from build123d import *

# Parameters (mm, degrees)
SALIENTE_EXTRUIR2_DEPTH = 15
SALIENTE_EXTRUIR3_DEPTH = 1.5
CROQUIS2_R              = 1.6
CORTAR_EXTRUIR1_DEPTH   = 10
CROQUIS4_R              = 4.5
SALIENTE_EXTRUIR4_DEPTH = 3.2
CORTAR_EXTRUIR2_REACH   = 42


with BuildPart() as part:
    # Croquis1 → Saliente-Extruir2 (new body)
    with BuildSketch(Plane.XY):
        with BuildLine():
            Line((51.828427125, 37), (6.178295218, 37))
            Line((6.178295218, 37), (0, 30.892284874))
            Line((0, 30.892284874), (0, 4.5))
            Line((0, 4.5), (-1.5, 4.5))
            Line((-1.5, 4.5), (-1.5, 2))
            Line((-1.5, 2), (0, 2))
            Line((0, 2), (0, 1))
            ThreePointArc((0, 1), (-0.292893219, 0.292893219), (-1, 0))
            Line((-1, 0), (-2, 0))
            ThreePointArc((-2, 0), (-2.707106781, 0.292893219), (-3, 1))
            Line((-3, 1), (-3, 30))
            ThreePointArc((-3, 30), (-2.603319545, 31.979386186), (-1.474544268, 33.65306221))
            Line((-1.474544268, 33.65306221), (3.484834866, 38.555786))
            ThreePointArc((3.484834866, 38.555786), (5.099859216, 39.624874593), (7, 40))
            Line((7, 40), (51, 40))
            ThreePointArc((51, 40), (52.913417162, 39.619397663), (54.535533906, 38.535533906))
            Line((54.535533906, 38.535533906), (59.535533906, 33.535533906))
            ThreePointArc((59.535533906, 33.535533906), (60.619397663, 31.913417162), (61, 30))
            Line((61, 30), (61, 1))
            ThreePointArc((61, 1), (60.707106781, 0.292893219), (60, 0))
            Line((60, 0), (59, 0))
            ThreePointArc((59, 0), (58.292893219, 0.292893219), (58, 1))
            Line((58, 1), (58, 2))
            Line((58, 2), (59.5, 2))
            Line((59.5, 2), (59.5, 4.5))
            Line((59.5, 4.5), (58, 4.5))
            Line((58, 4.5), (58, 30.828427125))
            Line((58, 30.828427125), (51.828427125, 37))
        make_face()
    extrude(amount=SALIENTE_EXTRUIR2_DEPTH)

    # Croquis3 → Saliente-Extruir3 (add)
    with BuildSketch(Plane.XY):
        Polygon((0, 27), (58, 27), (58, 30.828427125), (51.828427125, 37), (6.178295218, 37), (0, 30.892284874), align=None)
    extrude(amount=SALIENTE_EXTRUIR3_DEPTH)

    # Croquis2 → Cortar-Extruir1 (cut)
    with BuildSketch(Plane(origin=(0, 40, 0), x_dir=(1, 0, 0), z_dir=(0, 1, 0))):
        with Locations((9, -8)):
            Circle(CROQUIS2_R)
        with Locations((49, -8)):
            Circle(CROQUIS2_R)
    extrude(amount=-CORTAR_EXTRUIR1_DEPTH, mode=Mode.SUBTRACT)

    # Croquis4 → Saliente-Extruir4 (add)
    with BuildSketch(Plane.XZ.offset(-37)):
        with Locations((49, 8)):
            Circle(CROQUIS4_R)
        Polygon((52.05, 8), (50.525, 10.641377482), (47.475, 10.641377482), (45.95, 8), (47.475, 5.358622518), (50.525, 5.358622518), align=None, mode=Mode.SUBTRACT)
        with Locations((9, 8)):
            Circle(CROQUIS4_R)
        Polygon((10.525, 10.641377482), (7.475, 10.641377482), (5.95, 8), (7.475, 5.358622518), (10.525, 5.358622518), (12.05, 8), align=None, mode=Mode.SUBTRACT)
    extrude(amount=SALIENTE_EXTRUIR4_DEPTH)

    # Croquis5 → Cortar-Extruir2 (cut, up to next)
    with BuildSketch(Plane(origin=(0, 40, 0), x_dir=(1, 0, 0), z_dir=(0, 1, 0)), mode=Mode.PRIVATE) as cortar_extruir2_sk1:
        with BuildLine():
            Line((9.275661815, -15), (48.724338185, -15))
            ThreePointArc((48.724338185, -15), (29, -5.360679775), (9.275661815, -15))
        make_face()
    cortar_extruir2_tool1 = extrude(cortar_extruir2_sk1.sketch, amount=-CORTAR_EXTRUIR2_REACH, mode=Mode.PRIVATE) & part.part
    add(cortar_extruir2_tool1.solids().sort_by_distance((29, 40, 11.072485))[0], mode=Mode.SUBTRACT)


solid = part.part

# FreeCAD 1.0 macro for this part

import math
import FreeCAD as App
import Part
import Sketcher

V = App.Vector
Q = App.Units.Quantity

doc = App.newDocument("Part")
body = doc.addObject("PartDesign::Body", "Body")

# Sketch on XY plane
sketch1 = body.newObject("Sketcher::SketchObject", "Sketch")
sketch1.AttachmentSupport = (doc.getObject("XY_Plane"), [""])
sketch1.MapMode = "FlatFace"
sketch1.addGeometry([
    Part.LineSegment(V(6.2, 37, 0), V(51.8, 37, 0)),  # 0
    Part.LineSegment(V(51.8, 37, 0), V(58, 30.8, 0)),  # 1
    Part.LineSegment(V(58, 30.8, 0), V(58, 4.5, 0)),  # 2
    Part.LineSegment(V(58, 4.5, 0), V(59.5, 4.5, 0)),  # 3
    Part.LineSegment(V(59.5, 4.5, 0), V(59.5, 2, 0)),  # 4
    Part.LineSegment(V(59.5, 2, 0), V(58, 2, 0)),  # 5
    Part.LineSegment(V(58, 2, 0), V(58, 1, 0)),  # 6
    Part.ArcOfCircle(Part.Circle(V(59, 1, 0), V(0, 0, 1), 1), math.radians(-180), math.radians(-90)),  # 7
    Part.LineSegment(V(59, 0, 0), V(60, 0, 0)),  # 8
    Part.ArcOfCircle(Part.Circle(V(60, 1, 0), V(0, 0, 1), 1), math.radians(-90), math.radians(0)),  # 9
    Part.LineSegment(V(61, 1, 0), V(61, 30, 0)),  # 10
    Part.ArcOfCircle(Part.Circle(V(56, 30, 0), V(0, 0, 1), 5), math.radians(0), math.radians(45)),  # 11
    Part.LineSegment(V(59.5, 33.5, 0), V(54.5, 38.5, 0)),  # 12
    Part.ArcOfCircle(Part.Circle(V(51, 35, 0), V(0, 0, 1), 5), math.radians(45), math.radians(90)),  # 13
    Part.LineSegment(V(51, 40, 0), V(7, 40, 0)),  # 14
    Part.ArcOfCircle(Part.Circle(V(7, 35, 0), V(0, 0, 1), 5), math.radians(90), math.radians(135)),  # 15
    Part.LineSegment(V(3.5, 38.6, 0), V(-1.5, 33.7, 0)),  # 16
    Part.ArcOfCircle(Part.Circle(V(2.1, 30, 0), V(0, 0, 1), 5.1), math.radians(135), math.radians(180)),  # 17
    Part.LineSegment(V(-3, 30, 0), V(-3, 1, 0)),  # 18
    Part.ArcOfCircle(Part.Circle(V(-2, 1, 0), V(0, 0, 1), 1), math.radians(-180), math.radians(-90)),  # 19
    Part.LineSegment(V(-2, 0, 0), V(-1, 0, 0)),  # 20
    Part.ArcOfCircle(Part.Circle(V(-1, 1, 0), V(0, 0, 1), 1), math.radians(-90), math.radians(0)),  # 21
    Part.LineSegment(V(0, 1, 0), V(0, 2, 0)),  # 22
    Part.LineSegment(V(0, 2, 0), V(-1.5, 2, 0)),  # 23
    Part.LineSegment(V(-1.5, 2, 0), V(-1.5, 4.5, 0)),  # 24
    Part.LineSegment(V(-1.5, 4.5, 0), V(0, 4.5, 0)),  # 25
    Part.LineSegment(V(0, 4.5, 0), V(0, 30.9, 0)),  # 26
    Part.LineSegment(V(0, 30.9, 0), V(6.2, 37, 0)),  # 27
], False)
sketch1.addConstraint([
    Sketcher.Constraint("Coincident", 0, 2, 1, 1),
    Sketcher.Constraint("Coincident", 1, 2, 2, 1),
    Sketcher.Constraint("Coincident", 2, 2, 3, 1),
    Sketcher.Constraint("Coincident", 3, 2, 4, 1),
    Sketcher.Constraint("Coincident", 4, 2, 5, 1),
    Sketcher.Constraint("Coincident", 5, 2, 6, 1),
    Sketcher.Constraint("Tangent", 6, 2, 7, 1),
    Sketcher.Constraint("Tangent", 7, 2, 8, 1),
    Sketcher.Constraint("Tangent", 8, 2, 9, 1),
    Sketcher.Constraint("Tangent", 9, 2, 10, 1),
    Sketcher.Constraint("Tangent", 10, 2, 11, 1),
    Sketcher.Constraint("Tangent", 11, 2, 12, 1),
    Sketcher.Constraint("Tangent", 12, 2, 13, 1),
    Sketcher.Constraint("Tangent", 13, 2, 14, 1),
    Sketcher.Constraint("Tangent", 14, 2, 15, 1),
    Sketcher.Constraint("Tangent", 15, 2, 16, 1),
    Sketcher.Constraint("Tangent", 16, 2, 17, 1),
    Sketcher.Constraint("Tangent", 17, 2, 18, 1),
    Sketcher.Constraint("Tangent", 18, 2, 19, 1),
    Sketcher.Constraint("Tangent", 19, 2, 20, 1),
    Sketcher.Constraint("Tangent", 20, 2, 21, 1),
    Sketcher.Constraint("Tangent", 21, 2, 22, 1),
    Sketcher.Constraint("Coincident", 22, 2, 23, 1),
    Sketcher.Constraint("Coincident", 23, 2, 24, 1),
    Sketcher.Constraint("Coincident", 24, 2, 25, 1),
    Sketcher.Constraint("Coincident", 25, 2, 26, 1),
    Sketcher.Constraint("Coincident", 26, 2, 27, 1),
    Sketcher.Constraint("Coincident", 27, 2, 0, 1),
    Sketcher.Constraint("Horizontal", 0),
    Sketcher.Constraint("Vertical", 2),
    Sketcher.Constraint("Horizontal", 3),
    Sketcher.Constraint("Vertical", 4),
    Sketcher.Constraint("Horizontal", 5),
    Sketcher.Constraint("Vertical", 6),
    Sketcher.Constraint("Horizontal", 8),
    Sketcher.Constraint("Vertical", 10),
    Sketcher.Constraint("Horizontal", 14),
    Sketcher.Constraint("Vertical", 18),
    Sketcher.Constraint("Horizontal", 20),
    Sketcher.Constraint("Vertical", 22),
    Sketcher.Constraint("Horizontal", 23),
    Sketcher.Constraint("Vertical", 24),
    Sketcher.Constraint("Horizontal", 25),
    Sketcher.Constraint("Vertical", 26),
    Sketcher.Constraint("Equal", 7, 9),
    Sketcher.Constraint("Equal", 11, 13),
    Sketcher.Constraint("Equal", 13, 15),
    Sketcher.Constraint("Equal", 9, 19),
    Sketcher.Constraint("Equal", 19, 21),
    Sketcher.Constraint("PointOnObject", 7, 2, -1),
    Sketcher.Constraint("PointOnObject", 19, 2, -1),
    Sketcher.Constraint("PointOnObject", 21, 2, -2),
    Sketcher.Constraint("PointOnObject", 25, 2, -2),
    Sketcher.Constraint("Parallel", 1, 12),
    Sketcher.Constraint("Parallel", 16, 27),
    Sketcher.Constraint("Horizontal", 11, 3, 17, 3),
    Sketcher.Constraint("Horizontal", 5, 2, 22, 2),
    Sketcher.Constraint("Horizontal", 3, 2, 24, 2),
    Sketcher.Constraint("Vertical", 2, 2, 5, 2),
    Sketcher.Constraint("Equal", 8, 20),
    Sketcher.Constraint("Equal", 5, 23),
    Sketcher.Constraint("Equal", 20, 6),
    Sketcher.Constraint("Radius", 7, 1.0),
    Sketcher.Constraint("Radius", 11, 5.0),
    Sketcher.Constraint("DistanceX", 8, 1, 8, 2, 1.0),
    Sketcher.Constraint("DistanceX", 14, 2, 14, 1, 44.0),
    Sketcher.Constraint("DistanceY", 10, 1, 10, 2, 29.0),
    Sketcher.Constraint("Angle", 1, Q("-45 deg")),
    Sketcher.Constraint("DistanceX", 3, 1, 3, 2, 1.5),
    Sketcher.Constraint("DistanceY", 4, 2, 4, 1, 2.5),
    Sketcher.Constraint("DistanceX", -1, 1, 7, 3, 59.0),
    Sketcher.Constraint("DistanceX", -1, 1, 13, 3, 51.0),
    Sketcher.Constraint("DistanceY", -1, 1, 0, 2, 37.0),
    Sketcher.Constraint("Radius", 17, 5.136786),
    Sketcher.Constraint("DistanceX", 0, 1, 0, 2, 45.650132),
    Sketcher.Constraint("DistanceY", 26, 2, 15, 2, 7.663501),
])
pad1 = body.newObject("PartDesign::Pad", "Pad")
pad1.Profile = sketch1
pad1.Length = 15

# Sketch on XY plane
sketch2 = body.newObject("Sketcher::SketchObject", "Sketch001")
sketch2.AttachmentSupport = (doc.getObject("XY_Plane"), [""])
sketch2.MapMode = "FlatFace"
sketch2.addGeometry([
    Part.LineSegment(V(0, 27, 0), V(58, 27, 0)),  # 0
    Part.LineSegment(V(58, 27, 0), V(58, 30.8, 0)),  # 1
    Part.LineSegment(V(58, 30.8, 0), V(51.8, 37, 0)),  # 2
    Part.LineSegment(V(51.8, 37, 0), V(6.2, 37, 0)),  # 3
    Part.LineSegment(V(6.2, 37, 0), V(0, 30.9, 0)),  # 4
    Part.LineSegment(V(0, 30.9, 0), V(0, 27, 0)),  # 5
], False)
sketch2.addConstraint([
    Sketcher.Constraint("Coincident", 0, 2, 1, 1),
    Sketcher.Constraint("Coincident", 1, 2, 2, 1),
    Sketcher.Constraint("Coincident", 2, 2, 3, 1),
    Sketcher.Constraint("Coincident", 3, 2, 4, 1),
    Sketcher.Constraint("Coincident", 4, 2, 5, 1),
    Sketcher.Constraint("Coincident", 5, 2, 0, 1),
    Sketcher.Constraint("Horizontal", 0),
    Sketcher.Constraint("Vertical", 1),
    Sketcher.Constraint("Horizontal", 3),
    Sketcher.Constraint("Vertical", 5),
    Sketcher.Constraint("PointOnObject", 4, 2, -2),
    Sketcher.Constraint("DistanceX", 0, 1, 0, 2, 58.0),
    Sketcher.Constraint("Angle", 2, Q("135 deg")),
    Sketcher.Constraint("DistanceY", -1, 1, 0, 2, 27.0),
    Sketcher.Constraint("DistanceY", -1, 1, 2, 2, 37.0),
    Sketcher.Constraint("DistanceX", 3, 2, 3, 1, 45.650132),
    Sketcher.Constraint("DistanceY", 1, 1, 1, 2, 3.828427),
    Sketcher.Constraint("DistanceY", 5, 2, 5, 1, 3.892285),
])
pad2 = body.newObject("PartDesign::Pad", "Pad001")
pad2.Profile = sketch2
pad2.Length = 1.5

# Sketch on XZ plane
sketch3 = body.newObject("Sketcher::SketchObject", "Sketch002")
sketch3.AttachmentSupport = (doc.getObject("XZ_Plane"), [""])
sketch3.MapMode = "FlatFace"
sketch3.AttachmentOffset = App.Placement(V(0, 0, -40), App.Rotation())
sketch3.addGeometry([
    Part.Circle(V(9, 8, 0), V(0, 0, 1), 1.6),
    Part.Circle(V(49, 8, 0), V(0, 0, 1), 1.6),
], False)
sketch3.addConstraint([
    Sketcher.Constraint("Equal", 0, 1),
    Sketcher.Constraint("Horizontal", 0, 3, 1, 3),
    Sketcher.Constraint("Diameter", 0, 3.2),
    Sketcher.Constraint("DistanceX", -1, 1, 0, 3, 9.0),
    Sketcher.Constraint("DistanceY", -1, 1, 0, 3, 8.0),
    Sketcher.Constraint("DistanceX", -1, 1, 1, 3, 49.0),
])
pocket1 = body.newObject("PartDesign::Pocket", "Pocket")
pocket1.Profile = sketch3
pocket1.Length = 10
pocket1.Reversed = True

# Sketch on XZ plane
sketch4 = body.newObject("Sketcher::SketchObject", "Sketch003")
sketch4.AttachmentSupport = (doc.getObject("XZ_Plane"), [""])
sketch4.MapMode = "FlatFace"
sketch4.AttachmentOffset = App.Placement(V(0, 0, -37), App.Rotation())
sketch4.addGeometry([
    Part.Circle(V(49, 8, 0), V(0, 0, 1), 4.5),  # 0
    Part.LineSegment(V(50.5, 10.6, 0), V(52, 8, 0)),  # 1
    Part.LineSegment(V(52, 8, 0), V(50.5, 5.4, 0)),  # 2
    Part.LineSegment(V(50.5, 5.4, 0), V(47.5, 5.4, 0)),  # 3
    Part.LineSegment(V(47.5, 5.4, 0), V(46, 8, 0)),  # 4
    Part.LineSegment(V(46, 8, 0), V(47.5, 10.6, 0)),  # 5
    Part.LineSegment(V(47.5, 10.6, 0), V(50.5, 10.6, 0)),  # 6
    Part.Circle(V(9, 8, 0), V(0, 0, 1), 4.5),  # 7
    Part.LineSegment(V(7.5, 10.6, 0), V(10.5, 10.6, 0)),  # 8
    Part.LineSegment(V(10.5, 10.6, 0), V(12.1, 8, 0)),  # 9
    Part.LineSegment(V(12.1, 8, 0), V(10.5, 5.4, 0)),  # 10
    Part.LineSegment(V(10.5, 5.4, 0), V(7.5, 5.4, 0)),  # 11
    Part.LineSegment(V(7.5, 5.4, 0), V(6, 8, 0)),  # 12
    Part.LineSegment(V(6, 8, 0), V(7.5, 10.6, 0)),  # 13
], False)
sketch4.addConstraint([
    Sketcher.Constraint("Coincident", 1, 2, 2, 1),
    Sketcher.Constraint("Coincident", 2, 2, 3, 1),
    Sketcher.Constraint("Coincident", 3, 2, 4, 1),
    Sketcher.Constraint("Coincident", 4, 2, 5, 1),
    Sketcher.Constraint("Coincident", 5, 2, 6, 1),
    Sketcher.Constraint("Coincident", 6, 2, 1, 1),
    Sketcher.Constraint("Coincident", 8, 2, 9, 1),
    Sketcher.Constraint("Coincident", 9, 2, 10, 1),
    Sketcher.Constraint("Coincident", 10, 2, 11, 1),
    Sketcher.Constraint("Coincident", 11, 2, 12, 1),
    Sketcher.Constraint("Coincident", 12, 2, 13, 1),
    Sketcher.Constraint("Coincident", 13, 2, 8, 1),
    Sketcher.Constraint("Horizontal", 3),
    Sketcher.Constraint("Horizontal", 6),
    Sketcher.Constraint("Horizontal", 8),
    Sketcher.Constraint("Horizontal", 11),
    Sketcher.Constraint("Equal", 0, 7),
    Sketcher.Constraint("Parallel", 1, 4),
    Sketcher.Constraint("Parallel", 2, 5),
    Sketcher.Constraint("Parallel", 4, 9),
    Sketcher.Constraint("Parallel", 5, 10),
    Sketcher.Constraint("Parallel", 9, 12),
    Sketcher.Constraint("Parallel", 10, 13),
    Sketcher.Constraint("Horizontal", 0, 3, 7, 3),
    Sketcher.Constraint("Horizontal", 7, 3, 1, 2),
    Sketcher.Constraint("Horizontal", 1, 2, 4, 2),
    Sketcher.Constraint("Horizontal", 6, 2, 8, 2),
    Sketcher.Constraint("Horizontal", 4, 2, 9, 2),
    Sketcher.Constraint("Horizontal", 3, 2, 10, 2),
    Sketcher.Constraint("Horizontal", 9, 2, 12, 2),
    Sketcher.Constraint("Vertical", 3, 2, 5, 2),
    Sketcher.Constraint("Vertical", 2, 2, 6, 2),
    Sketcher.Constraint("Equal", 6, 8),
    Sketcher.Constraint("Diameter", 0, 9.0),
    Sketcher.Constraint("Angle", 1, Q("-60 deg")),
    Sketcher.Constraint("DistanceX", -1, 1, 0, 3, 49.0),
    Sketcher.Constraint("DistanceY", -1, 1, 0, 3, 8.0),
    Sketcher.Constraint("DistanceX", -1, 1, 7, 3, 9.0),
    Sketcher.Constraint("DistanceX", 3, 2, 3, 1, 3.05),
    Sketcher.Constraint("DistanceX", 4, 2, 1, 2, 6.1),
    Sketcher.Constraint("DistanceX", 9, 2, 4, 2, 33.9),
    Sketcher.Constraint("DistanceX", -1, 1, 1, 2, 52.05),
])
pad3 = body.newObject("PartDesign::Pad", "Pad002")
pad3.Profile = sketch4
pad3.Length = 3.2

# Sketch on XZ plane
sketch5 = body.newObject("Sketcher::SketchObject", "Sketch004")
sketch5.AttachmentSupport = (doc.getObject("XZ_Plane"), [""])
sketch5.MapMode = "FlatFace"
sketch5.AttachmentOffset = App.Placement(V(0, 0, -40), App.Rotation())
sketch5.addGeometry([
    Part.LineSegment(V(9, 15, 0), V(49, 15, 0)),
    Part.ArcOfCircle(Part.Circle(V(29, 30, 0), V(0, 0, 1), 25), math.radians(-142), math.radians(-38)),
], False)
sketch5.addConstraint([
    Sketcher.Constraint("Coincident", 0, 1, 1, 1),
    Sketcher.Constraint("Coincident", 1, 2, 0, 2),
    Sketcher.Constraint("Horizontal", 0),
    Sketcher.Constraint("Radius", 1, 25.0),
    Sketcher.Constraint("DistanceX", -1, 1, 1, 3, 29.0),
    Sketcher.Constraint("DistanceY", -1, 1, 0, 1, 15.0),
    Sketcher.Constraint("DistanceX", 0, 1, 0, 2, 39.448676),
])
pocket2 = body.newObject("PartDesign::Pocket", "Pocket001")
pocket2.Profile = sketch5
pocket2.Type = "UpToFirst"
pocket2.Reversed = True

doc.recompute()
